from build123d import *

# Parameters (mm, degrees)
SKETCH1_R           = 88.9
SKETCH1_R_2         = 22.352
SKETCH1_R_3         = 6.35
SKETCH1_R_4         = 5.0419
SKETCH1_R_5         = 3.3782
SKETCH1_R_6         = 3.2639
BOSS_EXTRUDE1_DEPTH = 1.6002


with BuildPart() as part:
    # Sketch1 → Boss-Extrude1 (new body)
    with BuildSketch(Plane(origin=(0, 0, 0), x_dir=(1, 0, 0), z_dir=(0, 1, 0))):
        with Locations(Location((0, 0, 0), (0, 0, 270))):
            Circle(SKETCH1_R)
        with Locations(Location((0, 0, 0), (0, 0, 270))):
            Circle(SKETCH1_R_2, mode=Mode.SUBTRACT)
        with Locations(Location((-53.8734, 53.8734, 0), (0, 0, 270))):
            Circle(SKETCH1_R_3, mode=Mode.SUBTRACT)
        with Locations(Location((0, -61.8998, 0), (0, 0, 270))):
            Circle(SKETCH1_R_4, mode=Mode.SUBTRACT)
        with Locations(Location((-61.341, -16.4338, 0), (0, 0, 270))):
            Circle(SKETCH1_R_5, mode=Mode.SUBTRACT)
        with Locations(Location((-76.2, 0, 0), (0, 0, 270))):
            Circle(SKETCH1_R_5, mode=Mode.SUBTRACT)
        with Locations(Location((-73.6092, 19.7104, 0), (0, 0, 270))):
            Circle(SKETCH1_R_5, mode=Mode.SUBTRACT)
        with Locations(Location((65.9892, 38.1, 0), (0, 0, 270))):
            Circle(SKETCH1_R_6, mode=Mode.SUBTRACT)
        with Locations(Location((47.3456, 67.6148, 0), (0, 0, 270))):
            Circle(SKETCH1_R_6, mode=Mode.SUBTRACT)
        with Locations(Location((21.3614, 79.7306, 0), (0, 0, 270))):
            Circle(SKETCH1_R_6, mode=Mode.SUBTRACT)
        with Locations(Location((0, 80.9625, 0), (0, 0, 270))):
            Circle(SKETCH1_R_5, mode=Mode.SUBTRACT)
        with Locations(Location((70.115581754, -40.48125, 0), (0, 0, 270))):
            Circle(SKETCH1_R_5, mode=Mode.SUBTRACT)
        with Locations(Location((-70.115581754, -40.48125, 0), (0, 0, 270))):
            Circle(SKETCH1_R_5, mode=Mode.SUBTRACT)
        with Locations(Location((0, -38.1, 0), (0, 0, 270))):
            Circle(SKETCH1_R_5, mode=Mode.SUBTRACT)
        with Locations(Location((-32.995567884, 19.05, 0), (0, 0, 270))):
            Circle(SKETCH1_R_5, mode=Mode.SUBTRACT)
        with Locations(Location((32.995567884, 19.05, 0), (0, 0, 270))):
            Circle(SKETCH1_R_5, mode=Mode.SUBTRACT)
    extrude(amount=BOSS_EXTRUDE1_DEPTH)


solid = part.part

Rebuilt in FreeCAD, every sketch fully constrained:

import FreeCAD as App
import Part
import Sketcher
Q = App.Units.Quantity

doc = App.newDocument("Part")
body = doc.addObject("PartDesign::Body", "Body")

# Sketch on XZ plane
sketch1 = doc.addObject("Sketcher::SketchObject", "Sketch")
body.addObject(sketch1)
sketch1.AttachmentSupport = (doc.XZ_Plane, [""])
sketch1.MapMode = "FlatFace"
sketch1.addGeometry([
    Part.Circle(App.Vector(0, 0, 0), App.Vector(0, 0, 1), 88.9),  # 0
    Part.Circle(App.Vector(-53.9, -53.9, 0), App.Vector(0, 0, 1), 6.3),  # 1
    Part.Circle(App.Vector(-73.6, -19.7, 0), App.Vector(0, 0, 1), 3.4),  # 2
    Part.Circle(App.Vector(-33, -19.1, 0), App.Vector(0, 0, 1), 3.4),  # 3
    Part.Circle(App.Vector(-76.2, 0, 0), App.Vector(0, 0, 1), 3.4),  # 4
    Part.Circle(App.Vector(-61.3, 16.4, 0), App.Vector(0, 0, 1), 3.4),  # 5
    Part.Circle(App.Vector(-70.1, 40.5, 0), App.Vector(0, 0, 1), 3.4),  # 6
    Part.Circle(App.Vector(0, -81, 0), App.Vector(0, 0, 1), 3.4),  # 7
    Part.Circle(App.Vector(21.4, -79.7, 0), App.Vector(0, 0, 1), 3.3),  # 8
    Part.Circle(App.Vector(33, -19.1, 0), App.Vector(0, 0, 1), 3.4),  # 9
    Part.Circle(App.Vector(47.3, -67.6, 0), App.Vector(0, 0, 1), 3.3),  # 10
    Part.Circle(App.Vector(66, -38.1, 0), App.Vector(0, 0, 1), 3.3),  # 11
    Part.Circle(App.Vector(0, 0, 0), App.Vector(0, 0, 1), 22.4),  # 12
    Part.Circle(App.Vector(0, 38.1, 0), App.Vector(0, 0, 1), 3.4),  # 13
    Part.Circle(App.Vector(0, 61.9, 0), App.Vector(0, 0, 1), 5),  # 14
    Part.Circle(App.Vector(70.1, 40.5, 0), App.Vector(0, 0, 1), 3.4),  # 15
], False)
sketch1.addConstraint([
    Sketcher.Constraint("Coincident", 0, 3, -1, 1),
    Sketcher.Constraint("Coincident", 12, 3, -1, 1),
    Sketcher.Constraint("Equal", 2, 3),
    Sketcher.Constraint("Equal", 3, 4),
    Sketcher.Constraint("Equal", 4, 5),
    Sketcher.Constraint("Equal", 5, 6),
    Sketcher.Constraint("Equal", 6, 7),
    Sketcher.Constraint("Equal", 7, 9),
    Sketcher.Constraint("Equal", 8, 10),
    Sketcher.Constraint("Equal", 10, 11),
    Sketcher.Constraint("Equal", 9, 13),
    Sketcher.Constraint("Equal", 13, 15),
    Sketcher.Constraint("Symmetric", 3, 3, 9, 3, -2),
    Sketcher.Constraint("Symmetric", 6, 3, 15, 3, -2),
    Sketcher.Constraint("PointOnObject", 4, 3, -1),
    Sketcher.Constraint("PointOnObject", 7, 3, -2),
    Sketcher.Constraint("PointOnObject", 13, 3, -2),
    Sketcher.Constraint("PointOnObject", 14, 3, -2),
    Sketcher.Constraint("Diameter", 0, Q("7 in")),
    Sketcher.Constraint("Diameter", 1, Q("0.5 in")),
    Sketcher.Constraint("Diameter", 12, Q("1.76 in")),
    Sketcher.Constraint("Diameter", 2, Q("0.266 in")),
    Sketcher.Constraint("Diameter", 8, Q("0.257 in")),
    Sketcher.Constraint("Diameter", 14, Q("0.397 in")),
    Sketcher.Constraint("DistanceX", 4, 3, -1, 1, Q("3 in")),
    Sketcher.Constraint("DistanceY", 11, 3, -1, 1, Q("1.5 in")),
    Sketcher.Constraint("DistanceY", -1, 1, 13, 3, Q("1.5 in")),
    Sketcher.Constraint("DistanceY", 3, 3, -1, 1, Q("0.75 in")),
    Sketcher.Constraint("DistanceY", 5, 3, 14, 3, Q("1.79 in")),
    Sketcher.Constraint("DistanceX", 1, 3, -1, 1, Q("2.121 in")),
    Sketcher.Constraint("DistanceY", 1, 3, -1, 1, Q("2.121 in")),
    Sketcher.Constraint("DistanceX", 2, 3, -1, 1, Q("2.898 in")),
    Sketcher.Constraint("DistanceY", 2, 3, -1, 1, Q("0.776 in")),
    Sketcher.Constraint("DistanceX", 5, 3, -1, 1, Q("2.415 in")),
    Sketcher.Constraint("DistanceY", -1, 1, 5, 3, Q("0.647 in")),
    Sketcher.Constraint("DistanceY", -1, 1, 6, 3, Q("1.59375 in")),
    Sketcher.Constraint("DistanceY", 7, 3, -1, 1, Q("3.1875 in")),
    Sketcher.Constraint("DistanceX", -1, 1, 8, 3, Q("0.841 in")),
    Sketcher.Constraint("DistanceY", 8, 3, -1, 1, Q("3.139 in")),
    Sketcher.Constraint("DistanceX", -1, 1, 10, 3, Q("1.864 in")),
    Sketcher.Constraint("DistanceY", 10, 3, -1, 1, Q("2.662 in")),
    Sketcher.Constraint("DistanceX", -1, 1, 11, 3, Q("2.598 in")),
    Sketcher.Constraint("DistanceX", 6, 3, -1, 1, Q("70.115582 mm")),
    Sketcher.Constraint("DistanceX", 3, 3, -1, 1, Q("32.995568 mm")),
])
pad1 = doc.addObject("PartDesign::Pad", "Pad")
body.addObject(pad1)
pad1.Profile = sketch1
pad1.Length = Q("0.063 in")
pad1.Reversed = True

doc.recompute()
